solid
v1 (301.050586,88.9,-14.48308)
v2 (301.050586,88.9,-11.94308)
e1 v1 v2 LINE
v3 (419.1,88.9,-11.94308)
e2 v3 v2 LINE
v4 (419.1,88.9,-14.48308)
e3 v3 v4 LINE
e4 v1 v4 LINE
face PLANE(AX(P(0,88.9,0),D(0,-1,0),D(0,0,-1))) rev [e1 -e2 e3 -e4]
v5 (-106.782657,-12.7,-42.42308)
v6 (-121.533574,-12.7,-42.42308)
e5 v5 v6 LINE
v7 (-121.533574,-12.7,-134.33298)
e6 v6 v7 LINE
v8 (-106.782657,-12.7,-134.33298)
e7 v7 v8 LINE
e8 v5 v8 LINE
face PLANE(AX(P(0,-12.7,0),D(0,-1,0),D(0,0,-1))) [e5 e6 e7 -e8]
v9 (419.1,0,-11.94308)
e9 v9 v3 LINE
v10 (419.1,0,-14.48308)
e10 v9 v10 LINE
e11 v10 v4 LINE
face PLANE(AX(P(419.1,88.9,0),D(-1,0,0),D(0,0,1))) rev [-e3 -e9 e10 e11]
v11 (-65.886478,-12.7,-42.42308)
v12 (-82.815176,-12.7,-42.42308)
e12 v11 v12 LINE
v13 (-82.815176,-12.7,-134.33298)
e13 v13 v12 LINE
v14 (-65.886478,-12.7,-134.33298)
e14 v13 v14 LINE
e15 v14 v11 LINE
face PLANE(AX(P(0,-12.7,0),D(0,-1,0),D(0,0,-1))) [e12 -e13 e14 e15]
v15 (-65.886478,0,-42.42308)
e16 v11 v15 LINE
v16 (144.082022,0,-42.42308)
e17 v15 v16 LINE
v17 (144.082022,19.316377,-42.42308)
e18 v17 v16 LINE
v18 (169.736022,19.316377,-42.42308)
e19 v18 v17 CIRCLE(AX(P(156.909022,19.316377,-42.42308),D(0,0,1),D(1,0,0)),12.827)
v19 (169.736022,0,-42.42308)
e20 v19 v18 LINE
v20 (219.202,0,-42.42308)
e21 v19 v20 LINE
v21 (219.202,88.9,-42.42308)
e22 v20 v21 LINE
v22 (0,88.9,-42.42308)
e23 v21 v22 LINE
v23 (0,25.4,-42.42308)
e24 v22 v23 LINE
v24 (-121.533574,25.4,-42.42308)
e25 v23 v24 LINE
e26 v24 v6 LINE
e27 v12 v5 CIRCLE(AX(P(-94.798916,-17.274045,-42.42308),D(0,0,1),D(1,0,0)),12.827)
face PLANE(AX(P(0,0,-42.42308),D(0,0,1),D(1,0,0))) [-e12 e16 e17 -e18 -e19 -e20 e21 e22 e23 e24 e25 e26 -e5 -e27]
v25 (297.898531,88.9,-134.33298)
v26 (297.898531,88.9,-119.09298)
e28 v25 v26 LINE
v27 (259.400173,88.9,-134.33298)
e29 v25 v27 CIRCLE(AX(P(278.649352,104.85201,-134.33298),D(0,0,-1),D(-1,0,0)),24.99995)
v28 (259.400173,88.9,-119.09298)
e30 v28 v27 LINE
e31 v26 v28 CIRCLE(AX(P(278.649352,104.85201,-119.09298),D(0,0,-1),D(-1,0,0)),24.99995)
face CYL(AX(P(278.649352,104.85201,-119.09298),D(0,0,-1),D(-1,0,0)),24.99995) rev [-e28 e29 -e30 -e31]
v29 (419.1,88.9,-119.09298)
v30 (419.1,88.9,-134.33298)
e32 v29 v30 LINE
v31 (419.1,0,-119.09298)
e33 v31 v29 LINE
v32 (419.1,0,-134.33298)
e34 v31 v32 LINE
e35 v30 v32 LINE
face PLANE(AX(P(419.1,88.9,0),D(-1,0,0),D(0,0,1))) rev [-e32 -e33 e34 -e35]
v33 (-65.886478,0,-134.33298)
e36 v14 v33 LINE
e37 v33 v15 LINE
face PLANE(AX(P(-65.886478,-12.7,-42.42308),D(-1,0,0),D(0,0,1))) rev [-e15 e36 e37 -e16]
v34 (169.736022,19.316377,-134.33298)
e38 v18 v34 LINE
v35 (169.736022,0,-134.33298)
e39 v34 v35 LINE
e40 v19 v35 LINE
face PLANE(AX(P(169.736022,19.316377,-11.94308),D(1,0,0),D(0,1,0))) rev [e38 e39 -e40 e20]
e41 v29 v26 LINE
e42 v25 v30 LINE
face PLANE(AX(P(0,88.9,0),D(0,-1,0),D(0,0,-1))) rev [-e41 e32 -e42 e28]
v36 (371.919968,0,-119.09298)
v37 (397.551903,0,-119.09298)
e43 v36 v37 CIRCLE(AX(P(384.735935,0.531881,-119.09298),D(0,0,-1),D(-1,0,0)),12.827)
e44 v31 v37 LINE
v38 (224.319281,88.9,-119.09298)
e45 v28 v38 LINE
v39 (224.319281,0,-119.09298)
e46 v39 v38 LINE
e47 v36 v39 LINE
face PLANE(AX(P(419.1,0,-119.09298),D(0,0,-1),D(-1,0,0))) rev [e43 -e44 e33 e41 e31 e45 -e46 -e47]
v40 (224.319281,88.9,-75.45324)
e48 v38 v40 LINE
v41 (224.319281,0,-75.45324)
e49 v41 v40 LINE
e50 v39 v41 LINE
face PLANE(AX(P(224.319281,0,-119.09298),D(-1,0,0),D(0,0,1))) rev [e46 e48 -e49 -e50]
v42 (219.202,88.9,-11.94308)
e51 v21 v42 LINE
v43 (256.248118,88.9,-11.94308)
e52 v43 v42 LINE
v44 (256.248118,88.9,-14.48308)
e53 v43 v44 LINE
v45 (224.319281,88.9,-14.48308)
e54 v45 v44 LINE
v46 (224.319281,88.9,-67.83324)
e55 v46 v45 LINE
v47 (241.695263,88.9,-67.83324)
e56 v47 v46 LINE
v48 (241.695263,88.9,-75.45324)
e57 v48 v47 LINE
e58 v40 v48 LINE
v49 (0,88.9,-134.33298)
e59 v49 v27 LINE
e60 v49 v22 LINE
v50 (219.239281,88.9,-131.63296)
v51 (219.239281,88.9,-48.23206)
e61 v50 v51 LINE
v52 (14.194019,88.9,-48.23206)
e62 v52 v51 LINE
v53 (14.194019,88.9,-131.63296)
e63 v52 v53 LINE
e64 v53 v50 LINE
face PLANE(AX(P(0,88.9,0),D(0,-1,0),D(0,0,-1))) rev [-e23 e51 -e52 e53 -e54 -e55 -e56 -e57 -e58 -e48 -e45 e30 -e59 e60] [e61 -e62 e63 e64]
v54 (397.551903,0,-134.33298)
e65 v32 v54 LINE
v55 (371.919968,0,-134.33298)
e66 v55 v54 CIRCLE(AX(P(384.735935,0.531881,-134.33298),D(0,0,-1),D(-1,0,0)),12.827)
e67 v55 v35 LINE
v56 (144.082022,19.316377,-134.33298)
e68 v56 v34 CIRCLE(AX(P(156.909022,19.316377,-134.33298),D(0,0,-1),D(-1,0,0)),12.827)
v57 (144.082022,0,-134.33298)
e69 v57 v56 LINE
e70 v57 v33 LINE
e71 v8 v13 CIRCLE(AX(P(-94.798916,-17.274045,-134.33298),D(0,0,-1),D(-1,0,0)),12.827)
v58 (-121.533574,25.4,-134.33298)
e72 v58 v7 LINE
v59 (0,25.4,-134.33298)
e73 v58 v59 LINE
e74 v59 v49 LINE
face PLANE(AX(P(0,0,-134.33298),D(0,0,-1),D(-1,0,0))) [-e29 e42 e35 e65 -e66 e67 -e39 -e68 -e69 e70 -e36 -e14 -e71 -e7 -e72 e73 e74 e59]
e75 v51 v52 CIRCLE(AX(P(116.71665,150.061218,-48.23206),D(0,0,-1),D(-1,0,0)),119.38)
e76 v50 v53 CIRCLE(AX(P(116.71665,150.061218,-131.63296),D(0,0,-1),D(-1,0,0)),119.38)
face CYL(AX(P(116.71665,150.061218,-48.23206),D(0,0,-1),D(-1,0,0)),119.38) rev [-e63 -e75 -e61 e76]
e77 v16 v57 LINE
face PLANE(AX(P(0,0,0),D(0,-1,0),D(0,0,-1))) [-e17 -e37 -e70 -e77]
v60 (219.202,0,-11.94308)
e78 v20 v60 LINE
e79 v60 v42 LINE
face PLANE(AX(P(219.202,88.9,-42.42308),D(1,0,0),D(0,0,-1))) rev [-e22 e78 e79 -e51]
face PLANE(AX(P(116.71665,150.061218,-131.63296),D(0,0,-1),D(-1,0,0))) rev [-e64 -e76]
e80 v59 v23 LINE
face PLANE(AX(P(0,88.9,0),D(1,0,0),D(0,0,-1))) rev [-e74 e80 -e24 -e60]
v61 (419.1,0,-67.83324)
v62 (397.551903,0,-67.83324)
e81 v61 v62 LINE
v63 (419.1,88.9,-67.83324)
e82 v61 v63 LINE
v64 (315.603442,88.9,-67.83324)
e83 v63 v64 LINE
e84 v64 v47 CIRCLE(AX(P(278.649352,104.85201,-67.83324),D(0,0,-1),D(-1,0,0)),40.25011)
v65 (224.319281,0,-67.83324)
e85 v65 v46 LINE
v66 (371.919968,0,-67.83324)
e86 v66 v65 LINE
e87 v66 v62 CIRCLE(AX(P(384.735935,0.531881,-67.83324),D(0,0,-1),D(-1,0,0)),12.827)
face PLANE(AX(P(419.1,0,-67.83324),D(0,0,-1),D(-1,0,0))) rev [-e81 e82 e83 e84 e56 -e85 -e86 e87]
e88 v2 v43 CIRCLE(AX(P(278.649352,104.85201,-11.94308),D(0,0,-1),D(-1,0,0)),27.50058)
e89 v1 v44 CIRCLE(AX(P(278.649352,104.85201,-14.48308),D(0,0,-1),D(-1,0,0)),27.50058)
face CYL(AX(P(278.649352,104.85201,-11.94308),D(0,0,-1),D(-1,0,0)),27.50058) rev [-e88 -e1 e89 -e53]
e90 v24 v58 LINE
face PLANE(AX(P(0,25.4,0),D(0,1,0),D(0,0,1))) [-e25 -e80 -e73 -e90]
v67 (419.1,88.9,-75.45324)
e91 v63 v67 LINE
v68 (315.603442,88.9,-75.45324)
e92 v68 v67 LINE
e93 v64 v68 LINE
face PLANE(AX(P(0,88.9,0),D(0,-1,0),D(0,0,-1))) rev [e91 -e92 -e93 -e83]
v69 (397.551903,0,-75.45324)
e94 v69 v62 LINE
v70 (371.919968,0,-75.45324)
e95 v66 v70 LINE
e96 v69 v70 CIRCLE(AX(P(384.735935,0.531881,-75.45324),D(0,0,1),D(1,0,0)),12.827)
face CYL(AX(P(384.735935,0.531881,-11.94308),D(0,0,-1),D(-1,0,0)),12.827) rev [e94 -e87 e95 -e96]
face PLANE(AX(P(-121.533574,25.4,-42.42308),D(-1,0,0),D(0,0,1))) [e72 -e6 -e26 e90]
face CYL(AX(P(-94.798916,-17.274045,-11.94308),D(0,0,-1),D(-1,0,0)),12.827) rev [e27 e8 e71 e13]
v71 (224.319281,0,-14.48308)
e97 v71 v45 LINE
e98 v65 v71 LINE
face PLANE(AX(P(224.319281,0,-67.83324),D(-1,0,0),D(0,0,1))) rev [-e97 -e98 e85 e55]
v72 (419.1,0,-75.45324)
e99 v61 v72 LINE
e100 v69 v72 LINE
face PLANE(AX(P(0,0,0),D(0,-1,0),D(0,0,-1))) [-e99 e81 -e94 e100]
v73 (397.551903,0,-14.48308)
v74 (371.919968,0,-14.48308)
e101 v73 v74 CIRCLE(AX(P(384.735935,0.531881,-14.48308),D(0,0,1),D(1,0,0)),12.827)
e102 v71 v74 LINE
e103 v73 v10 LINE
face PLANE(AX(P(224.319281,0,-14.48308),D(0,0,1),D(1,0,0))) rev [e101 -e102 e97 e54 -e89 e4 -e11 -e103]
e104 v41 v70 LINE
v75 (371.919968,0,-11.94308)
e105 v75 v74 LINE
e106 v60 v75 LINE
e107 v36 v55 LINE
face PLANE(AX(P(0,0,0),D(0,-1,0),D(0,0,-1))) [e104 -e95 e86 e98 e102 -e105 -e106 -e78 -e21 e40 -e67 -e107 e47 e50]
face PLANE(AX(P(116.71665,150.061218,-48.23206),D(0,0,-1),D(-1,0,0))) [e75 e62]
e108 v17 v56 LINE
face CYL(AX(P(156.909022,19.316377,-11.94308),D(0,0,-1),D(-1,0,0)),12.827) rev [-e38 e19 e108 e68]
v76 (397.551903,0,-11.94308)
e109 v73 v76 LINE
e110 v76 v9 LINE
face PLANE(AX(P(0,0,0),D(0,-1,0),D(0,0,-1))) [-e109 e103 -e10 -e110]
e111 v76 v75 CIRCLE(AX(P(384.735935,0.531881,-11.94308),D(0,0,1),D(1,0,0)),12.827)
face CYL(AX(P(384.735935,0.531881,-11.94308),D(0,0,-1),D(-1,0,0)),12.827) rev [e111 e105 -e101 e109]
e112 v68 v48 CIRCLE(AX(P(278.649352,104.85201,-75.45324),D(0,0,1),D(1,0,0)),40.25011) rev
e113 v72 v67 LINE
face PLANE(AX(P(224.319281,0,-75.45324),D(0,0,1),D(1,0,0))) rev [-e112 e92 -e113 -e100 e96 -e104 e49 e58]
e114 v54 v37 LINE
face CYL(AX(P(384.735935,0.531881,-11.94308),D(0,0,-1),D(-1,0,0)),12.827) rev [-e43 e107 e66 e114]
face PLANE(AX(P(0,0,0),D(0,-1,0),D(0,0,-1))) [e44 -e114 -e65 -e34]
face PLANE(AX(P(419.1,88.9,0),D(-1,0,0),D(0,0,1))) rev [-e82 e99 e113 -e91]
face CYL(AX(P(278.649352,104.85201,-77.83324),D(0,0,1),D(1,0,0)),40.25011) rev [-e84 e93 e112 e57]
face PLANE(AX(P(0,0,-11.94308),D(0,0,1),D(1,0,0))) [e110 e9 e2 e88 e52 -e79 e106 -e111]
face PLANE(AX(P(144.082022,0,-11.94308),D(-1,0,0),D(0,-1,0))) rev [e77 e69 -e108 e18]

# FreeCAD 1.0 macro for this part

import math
import FreeCAD as App
import Part
import Sketcher
from FreeCAD import Vector
Q = App.Units.Quantity


def add_polygon(sketch, points):
    """Adds a closed chain of lines whose ends are joined by coincident constraints."""
    first, n = sketch.GeometryCount, len(points)
    for a, b in zip(points, points[1:] + points[:1]):
        sketch.addGeometry(Part.LineSegment(App.Vector(*a, 0), App.Vector(*b, 0)), False)
    for i in range(n):
        sketch.addConstraint(Sketcher.Constraint("Coincident", first + i, 2, first + (i + 1) % n, 1))

doc = App.newDocument("Part")
params = doc.addObject("Spreadsheet::Sheet", "Params")
for row, (alias, value) in enumerate([
    ("sketch1_width", "16.5 in"),
    ("pad1_length", "3.5 in"),
    ("sketch2_diameter", "9.4 in"),
    ("pocket1_length", "3.2835 in"),
    ("pocket3_length", "0.6 in"),
    ("pocket4_length", "10 mm"),
    ("pocket5_length", "0.1 in"),
    ("sketch7_width", "16.5 in"),
    ("sketch7_height", "3.5 in"),
    ("pocket6_length", "0.3091 in"),
    ("sketch8_width", "16.5 in"),
    ("sketch8_height", "3.5 in"),
    ("pocket7_length", "0.4702 in"),
    ("sketch9_height", "3.5 in"),
    ("sketch9_width", "8.63 in"),
    ("pocket8_length", "1.2 in"),
    ("pad2_length", "1 in"),
    ("pad3_length", "0.5 in"),
    ("sketch12_diameter", "1.01 in"),
], start=1):
    params.set(f"A{row}", alias)
    params.set(f"B{row}", "=" + value)
    params.setAlias(f"B{row}", alias)

body = doc.addObject("PartDesign::Body", "Body")

# Sketch on XZ plane
sketch1 = body.newObject("Sketcher::SketchObject", "Sketch")
sketch1.AttachmentSupport = (doc.getObject("XZ_Plane"), [""])
sketch1.MapMode = "FlatFace"
add_polygon(sketch1, [(0, -142.18412), (0, 0), (419.1, 0), (419.1, -142.18412)])  # lines 0-3
sketch1.addConstraint([
    Sketcher.Constraint("Vertical", 0),
    Sketcher.Constraint("Horizontal", 1),
    Sketcher.Constraint("Vertical", 2),
    Sketcher.Constraint("Horizontal", 3),
    Sketcher.Constraint("Coincident", 0, 2, -1, 1),
    Sketcher.Constraint("DistanceX", 1, 1, 1, 2, Q("16.5 in")),
    Sketcher.Constraint("DistanceY", 0, 1, 0, 2, Q("5.5978 in")),
])
sketch1.setExpression("Constraints[9]", "Params.sketch1_width")
pad1 = body.newObject("PartDesign::Pad", "Pad")
pad1.Profile = sketch1
pad1.setExpression("Length", "Params.pad1_length")
pad1.Reversed = True

# Sketch on XY plane
sketch2 = body.newObject("Sketcher::SketchObject", "Sketch001")
sketch2.AttachmentSupport = (doc.getObject("XY_Plane"), [""])
sketch2.MapMode = "FlatFace"
sketch2.AttachmentOffset = App.Placement(Vector(0, 0, -5.1824 * 25.4), App.Rotation())
sketch2.addGeometry(Part.Circle(Vector(116.71665, 150.061218, 0), Vector(0, 0, 1), 119.38), False)
sketch2.addConstraint([
    Sketcher.Constraint("Diameter", 0, Q("9.4 in")),
    Sketcher.Constraint("DistanceX", -1, 1, 0, 3, Q("116.71665 mm")),
    Sketcher.Constraint("DistanceY", -1, 1, 0, 3, Q("150.061218 mm")),
])
sketch2.setExpression("Constraints[0]", "Params.sketch2_diameter")
pocket1 = body.newObject("PartDesign::Pocket", "Pocket")
pocket1.Profile = sketch2
pocket1.setExpression("Length", "Params.pocket1_length")
pocket1.Reversed = True

# Sketch on XZ plane
sketch3 = body.newObject("Sketcher::SketchObject", "Sketch002")
sketch3.AttachmentSupport = (doc.getObject("XZ_Plane"), [""])
sketch3.MapMode = "FlatFace"
sketch3.AttachmentOffset = App.Placement(Vector(0, 0, -3.5 * 25.4), App.Rotation())
add_polygon(sketch3, [(224.319281, -119.09298), (224.319281, -75.45324), (419.1, -75.45324), (419.1, -119.09298)])  # lines 0-3
add_polygon(sketch3, [(224.319281, -67.83324), (224.319281, -14.48308), (419.1, -14.48308), (419.1, -67.83324)])  # lines 4-7
sketch3.addConstraint([
    Sketcher.Constraint("Vertical", 0),
    Sketcher.Constraint("Horizontal", 1),
    Sketcher.Constraint("Vertical", 2),
    Sketcher.Constraint("Horizontal", 3),
    Sketcher.Constraint("Vertical", 4),
    Sketcher.Constraint("Horizontal", 5),
    Sketcher.Constraint("Vertical", 6),
    Sketcher.Constraint("Horizontal", 7),
    Sketcher.Constraint("Vertical", 3, 2, 4, 2),
    Sketcher.Constraint("Vertical", 2, 2, 5, 2),
    Sketcher.Constraint("DistanceX", -1, 1, 1, 2, Q("16.5 in")),
    Sketcher.Constraint("DistanceY", 1, 2, 6, 2, Q("0.3 in")),
    Sketcher.Constraint("DistanceY", 0, 1, 0, 2, Q("1.7181 in")),
    Sketcher.Constraint("DistanceY", 4, 1, 4, 2, Q("2.1004 in")),
    Sketcher.Constraint("DistanceY", 0, 2, -1, 1, Q("2.9706 in")),
    Sketcher.Constraint("DistanceX", 1, 1, 1, 2, Q("194.780719 mm")),
])
pocket2 = body.newObject("PartDesign::Pocket", "Pocket001")
pocket2.Profile = sketch3
pocket2.Type = "ThroughAll"
pocket2.Reversed = True

# Sketch on XY plane
sketch4 = body.newObject("Sketcher::SketchObject", "Sketch003")
sketch4.AttachmentSupport = (doc.getObject("XY_Plane"), [""])
sketch4.MapMode = "FlatFace"
sketch4.AttachmentOffset = App.Placement(Vector(0, 0, -5.2887 * 25.4), App.Rotation())
sketch4.addGeometry(Part.Circle(Vector(278.649352, 104.85201, 0), Vector(0, 0, 1), 24.99995), False)
sketch4.addConstraint([
    Sketcher.Constraint("Diameter", 0, Q("1.9685 in")),
    Sketcher.Constraint("DistanceY", -1, 1, 0, 3, Q("104.85201 mm")),
    Sketcher.Constraint("DistanceX", -1, 1, 0, 3, Q("278.649352 mm")),
])
pocket3 = body.newObject("PartDesign::Pocket", "Pocket002")
pocket3.Profile = sketch4
pocket3.setExpression("Length", "Params.pocket3_length")
pocket3.Reversed = True

# Sketch on XY plane
sketch5 = body.newObject("Sketcher::SketchObject", "Sketch004")
sketch5.AttachmentSupport = (doc.getObject("XY_Plane"), [""])
sketch5.MapMode = "FlatFace"
sketch5.AttachmentOffset = App.Placement(Vector(0, 0, -2.6706 * 25.4), App.Rotation())
sketch5.addGeometry(Part.Circle(Vector(278.649352, 104.85201, 0), Vector(0, 0, 1), 40.25011), False)
sketch5.addConstraint([
    Sketcher.Constraint("Diameter", 0, Q("3.1693 in")),
    Sketcher.Constraint("DistanceY", -1, 1, 0, 3, Q("104.85201 mm")),
    Sketcher.Constraint("DistanceX", -1, 1, 0, 3, Q("278.649352 mm")),
])
pocket4 = body.newObject("PartDesign::Pocket", "Pocket003")
pocket4.Profile = sketch5
pocket4.setExpression("Length", "Params.pocket4_length")

# Sketch on XY plane
sketch6 = body.newObject("Sketcher::SketchObject", "Sketch005")
sketch6.AttachmentSupport = (doc.getObject("XY_Plane"), [""])
sketch6.MapMode = "FlatFace"
sketch6.AttachmentOffset = App.Placement(Vector(0, 0, -0.5702 * 25.4), App.Rotation())
sketch6.addGeometry(Part.Circle(Vector(278.649352, 104.85201, 0), Vector(0, 0, 1), 27.50058), False)
sketch6.addConstraint([
    Sketcher.Constraint("Diameter", 0, Q("2.1654 in")),
    Sketcher.Constraint("DistanceY", -1, 1, 0, 3, Q("104.85201 mm")),
    Sketcher.Constraint("DistanceX", -1, 1, 0, 3, Q("278.649352 mm")),
])
pocket5 = body.newObject("PartDesign::Pocket", "Pocket004")
pocket5.Profile = sketch6
pocket5.setExpression("Length", "Params.pocket5_length")
pocket5.Reversed = True

# Sketch on XY plane
sketch7 = body.newObject("Sketcher::SketchObject", "Sketch006")
sketch7.AttachmentSupport = (doc.getObject("XY_Plane"), [""])
sketch7.MapMode = "FlatFace"
sketch7.AttachmentOffset = App.Placement(Vector(0, 0, -5.5978 * 25.4), App.Rotation())
add_polygon(sketch7, [(419.1, 88.9), (419.1, 0), (0, 0), (0, 88.9)])  # lines 0-3
sketch7.addConstraint([
    Sketcher.Constraint("Vertical", 0),
    Sketcher.Constraint("Horizontal", 1),
    Sketcher.Constraint("Vertical", 2),
    Sketcher.Constraint("Horizontal", 3),
    Sketcher.Constraint("Coincident", 1, 2, -1, 1),
    Sketcher.Constraint("DistanceX", 1, 2, 1, 1, Q("16.5 in")),
    Sketcher.Constraint("DistanceY", 0, 2, 0, 1, Q("3.5 in")),
])
sketch7.setExpression("Constraints[9]", "Params.sketch7_width")
sketch7.setExpression("Constraints[10]", "Params.sketch7_height")
pocket6 = body.newObject("PartDesign::Pocket", "Pocket005")
pocket6.Profile = sketch7
pocket6.setExpression("Length", "Params.pocket6_length")
pocket6.Reversed = True

# Sketch on XY plane
sketch8 = body.newObject("Sketcher::SketchObject", "Sketch007")
sketch8.AttachmentSupport = (doc.getObject("XY_Plane"), [""])
sketch8.MapMode = "FlatFace"
add_polygon(sketch8, [(0, 88.9), (0, 0), (419.1, 0), (419.1, 88.9)])  # lines 0-3
sketch8.addConstraint([
    Sketcher.Constraint("Vertical", 0),
    Sketcher.Constraint("Horizontal", 1),
    Sketcher.Constraint("Vertical", 2),
    Sketcher.Constraint("Horizontal", 3),
    Sketcher.Constraint("Coincident", 0, 2, -1, 1),
    Sketcher.Constraint("DistanceX", 1, 1, 1, 2, Q("16.5 in")),
    Sketcher.Constraint("DistanceY", 0, 2, 0, 1, Q("3.5 in")),
])
sketch8.setExpression("Constraints[9]", "Params.sketch8_width")
sketch8.setExpression("Constraints[10]", "Params.sketch8_height")
pocket7 = body.newObject("PartDesign::Pocket", "Pocket006")
pocket7.Profile = sketch8
pocket7.setExpression("Length", "Params.pocket7_length")

# Sketch on XY plane
sketch9 = body.newObject("Sketcher::SketchObject", "Sketch008")
sketch9.AttachmentSupport = (doc.getObject("XY_Plane"), [""])
sketch9.MapMode = "FlatFace"
sketch9.AttachmentOffset = App.Placement(Vector(0, 0, -0.4702 * 25.4), App.Rotation())
add_polygon(sketch9, [(0, 88.9), (0, 0), (219.202, 0), (219.202, 88.9)])  # lines 0-3
sketch9.addConstraint([
    Sketcher.Constraint("Vertical", 0),
    Sketcher.Constraint("Horizontal", 1),
    Sketcher.Constraint("Vertical", 2),
    Sketcher.Constraint("Horizontal", 3),
    Sketcher.Constraint("Coincident", 0, 2, -1, 1),
    Sketcher.Constraint("DistanceY", 0, 2, 0, 1, Q("3.5 in")),
    Sketcher.Constraint("DistanceX", 1, 1, 1, 2, Q("8.63 in")),
])
sketch9.setExpression("Constraints[9]", "Params.sketch9_height")
sketch9.setExpression("Constraints[10]", "Params.sketch9_width")
pocket8 = body.newObject("PartDesign::Pocket", "Pocket007")
pocket8.Profile = sketch9
pocket8.setExpression("Length", "Params.pocket8_length")

# Sketch on XZ plane
sketch10 = body.newObject("Sketcher::SketchObject", "Sketch009")
sketch10.AttachmentSupport = (doc.getObject("XZ_Plane"), [""])
sketch10.MapMode = "FlatFace"
add_polygon(sketch10, [(-121.533574, -42.42308), (-121.533574, -134.33298), (0, -134.33298), (0, -42.42308)])  # lines 0-3
sketch10.addConstraint([
    Sketcher.Constraint("Vertical", 0),
    Sketcher.Constraint("Horizontal", 1),
    Sketcher.Constraint("Vertical", 2),
    Sketcher.Constraint("Horizontal", 3),
    Sketcher.Constraint("PointOnObject", 1, 2, -2),
    Sketcher.Constraint("DistanceY", 0, 2, 0, 1, Q("3.6185 in")),
    Sketcher.Constraint("DistanceY", 0, 2, -1, 1, Q("5.2887 in")),
    Sketcher.Constraint("DistanceX", 1, 1, 1, 2, Q("121.533574 mm")),
])
pad2 = body.newObject("PartDesign::Pad", "Pad001")
pad2.Profile = sketch10
pad2.setExpression("Length", "Params.pad2_length")
pad2.Reversed = True

# Sketch on XZ plane
sketch11 = body.newObject("Sketcher::SketchObject", "Sketch010")
sketch11.AttachmentSupport = (doc.getObject("XZ_Plane"), [""])
sketch11.MapMode = "FlatFace"
add_polygon(sketch11, [(-121.533574, -42.42308), (-121.533574, -134.33298), (-65.886478, -134.33298), (-65.886478, -42.42308)])  # lines 0-3
sketch11.addConstraint([
    Sketcher.Constraint("Vertical", 0),
    Sketcher.Constraint("Horizontal", 1),
    Sketcher.Constraint("Vertical", 2),
    Sketcher.Constraint("Horizontal", 3),
    Sketcher.Constraint("DistanceY", 0, 2, 0, 1, Q("3.6185 in")),
    Sketcher.Constraint("DistanceY", 0, 2, -1, 1, Q("5.2887 in")),
    Sketcher.Constraint("DistanceX", 1, 1, 1, 2, Q("55.647096 mm")),
    Sketcher.Constraint("DistanceX", 1, 2, -1, 1, Q("65.886478 mm")),
])
pad3 = body.newObject("PartDesign::Pad", "Pad002")
pad3.Profile = sketch11
pad3.setExpression("Length", "Params.pad3_length")

# Sketch on XY plane
sketch12 = body.newObject("Sketcher::SketchObject", "Sketch011")
sketch12.AttachmentSupport = (doc.getObject("XY_Plane"), [""])
sketch12.MapMode = "FlatFace"
sketch12.AttachmentOffset = App.Placement(Vector(0, 0, -5.2887 * 25.4), App.Rotation())
sketch12.addGeometry([
    Part.Circle(Vector(384.735935, 0.531881, 0), Vector(0, 0, 1), 12.827),  # 0
    Part.Circle(Vector(-94.798916, -17.274045, 0), Vector(0, 0, 1), 12.827),  # 1
    Part.LineSegment(Vector(169.736022, 19.316377, 0), Vector(169.736022, 0, 0)),  # 2
    Part.LineSegment(Vector(169.736022, 0, 0), Vector(144.082022, 0, 0)),  # 3
    Part.LineSegment(Vector(144.082022, 0, 0), Vector(144.082022, 19.316377, 0)),  # 4
    Part.ArcOfCircle(Part.Circle(Vector(156.909022, 19.316377, 0), Vector(0, 0, 1), 12.827), math.radians(0), math.radians(180)),  # 5
], False)
sketch12.addConstraint([
    Sketcher.Constraint("Coincident", 2, 2, 3, 1),
    Sketcher.Constraint("Coincident", 3, 2, 4, 1),
    Sketcher.Constraint("Tangent", 4, 2, 5, 2),
    Sketcher.Constraint("Tangent", 5, 1, 2, 1),
    Sketcher.Constraint("Vertical", 2),
    Sketcher.Constraint("Horizontal", 3),
    Sketcher.Constraint("Vertical", 4),
    Sketcher.Constraint("Equal", 0, 1),
    Sketcher.Constraint("Equal", 1, 5),
    Sketcher.Constraint("PointOnObject", 2, 2, -1),
    Sketcher.Constraint("Diameter", 0, Q("1.01 in")),
    Sketcher.Constraint("DistanceY", 2, 2, 2, 1, Q("19.316377 mm")),
    Sketcher.Constraint("DistanceY", -1, 1, 0, 3, Q("0.531881 mm")),
    Sketcher.Constraint("DistanceX", -1, 1, 5, 3, Q("156.909022 mm")),
    Sketcher.Constraint("DistanceX", 1, 3, 0, 3, Q("479.534852 mm")),
    Sketcher.Constraint("DistanceX", -1, 1, 0, 3, Q("384.735935 mm")),
    Sketcher.Constraint("DistanceY", 1, 3, -1, 1, Q("17.274045 mm")),
])
sketch12.setExpression("Constraints[10]", "Params.sketch12_diameter")
pocket9 = body.newObject("PartDesign::Pocket", "Pocket008")
pocket9.Profile = sketch12
pocket9.Type = "ThroughAll"
pocket9.Reversed = True

doc.recompute()
